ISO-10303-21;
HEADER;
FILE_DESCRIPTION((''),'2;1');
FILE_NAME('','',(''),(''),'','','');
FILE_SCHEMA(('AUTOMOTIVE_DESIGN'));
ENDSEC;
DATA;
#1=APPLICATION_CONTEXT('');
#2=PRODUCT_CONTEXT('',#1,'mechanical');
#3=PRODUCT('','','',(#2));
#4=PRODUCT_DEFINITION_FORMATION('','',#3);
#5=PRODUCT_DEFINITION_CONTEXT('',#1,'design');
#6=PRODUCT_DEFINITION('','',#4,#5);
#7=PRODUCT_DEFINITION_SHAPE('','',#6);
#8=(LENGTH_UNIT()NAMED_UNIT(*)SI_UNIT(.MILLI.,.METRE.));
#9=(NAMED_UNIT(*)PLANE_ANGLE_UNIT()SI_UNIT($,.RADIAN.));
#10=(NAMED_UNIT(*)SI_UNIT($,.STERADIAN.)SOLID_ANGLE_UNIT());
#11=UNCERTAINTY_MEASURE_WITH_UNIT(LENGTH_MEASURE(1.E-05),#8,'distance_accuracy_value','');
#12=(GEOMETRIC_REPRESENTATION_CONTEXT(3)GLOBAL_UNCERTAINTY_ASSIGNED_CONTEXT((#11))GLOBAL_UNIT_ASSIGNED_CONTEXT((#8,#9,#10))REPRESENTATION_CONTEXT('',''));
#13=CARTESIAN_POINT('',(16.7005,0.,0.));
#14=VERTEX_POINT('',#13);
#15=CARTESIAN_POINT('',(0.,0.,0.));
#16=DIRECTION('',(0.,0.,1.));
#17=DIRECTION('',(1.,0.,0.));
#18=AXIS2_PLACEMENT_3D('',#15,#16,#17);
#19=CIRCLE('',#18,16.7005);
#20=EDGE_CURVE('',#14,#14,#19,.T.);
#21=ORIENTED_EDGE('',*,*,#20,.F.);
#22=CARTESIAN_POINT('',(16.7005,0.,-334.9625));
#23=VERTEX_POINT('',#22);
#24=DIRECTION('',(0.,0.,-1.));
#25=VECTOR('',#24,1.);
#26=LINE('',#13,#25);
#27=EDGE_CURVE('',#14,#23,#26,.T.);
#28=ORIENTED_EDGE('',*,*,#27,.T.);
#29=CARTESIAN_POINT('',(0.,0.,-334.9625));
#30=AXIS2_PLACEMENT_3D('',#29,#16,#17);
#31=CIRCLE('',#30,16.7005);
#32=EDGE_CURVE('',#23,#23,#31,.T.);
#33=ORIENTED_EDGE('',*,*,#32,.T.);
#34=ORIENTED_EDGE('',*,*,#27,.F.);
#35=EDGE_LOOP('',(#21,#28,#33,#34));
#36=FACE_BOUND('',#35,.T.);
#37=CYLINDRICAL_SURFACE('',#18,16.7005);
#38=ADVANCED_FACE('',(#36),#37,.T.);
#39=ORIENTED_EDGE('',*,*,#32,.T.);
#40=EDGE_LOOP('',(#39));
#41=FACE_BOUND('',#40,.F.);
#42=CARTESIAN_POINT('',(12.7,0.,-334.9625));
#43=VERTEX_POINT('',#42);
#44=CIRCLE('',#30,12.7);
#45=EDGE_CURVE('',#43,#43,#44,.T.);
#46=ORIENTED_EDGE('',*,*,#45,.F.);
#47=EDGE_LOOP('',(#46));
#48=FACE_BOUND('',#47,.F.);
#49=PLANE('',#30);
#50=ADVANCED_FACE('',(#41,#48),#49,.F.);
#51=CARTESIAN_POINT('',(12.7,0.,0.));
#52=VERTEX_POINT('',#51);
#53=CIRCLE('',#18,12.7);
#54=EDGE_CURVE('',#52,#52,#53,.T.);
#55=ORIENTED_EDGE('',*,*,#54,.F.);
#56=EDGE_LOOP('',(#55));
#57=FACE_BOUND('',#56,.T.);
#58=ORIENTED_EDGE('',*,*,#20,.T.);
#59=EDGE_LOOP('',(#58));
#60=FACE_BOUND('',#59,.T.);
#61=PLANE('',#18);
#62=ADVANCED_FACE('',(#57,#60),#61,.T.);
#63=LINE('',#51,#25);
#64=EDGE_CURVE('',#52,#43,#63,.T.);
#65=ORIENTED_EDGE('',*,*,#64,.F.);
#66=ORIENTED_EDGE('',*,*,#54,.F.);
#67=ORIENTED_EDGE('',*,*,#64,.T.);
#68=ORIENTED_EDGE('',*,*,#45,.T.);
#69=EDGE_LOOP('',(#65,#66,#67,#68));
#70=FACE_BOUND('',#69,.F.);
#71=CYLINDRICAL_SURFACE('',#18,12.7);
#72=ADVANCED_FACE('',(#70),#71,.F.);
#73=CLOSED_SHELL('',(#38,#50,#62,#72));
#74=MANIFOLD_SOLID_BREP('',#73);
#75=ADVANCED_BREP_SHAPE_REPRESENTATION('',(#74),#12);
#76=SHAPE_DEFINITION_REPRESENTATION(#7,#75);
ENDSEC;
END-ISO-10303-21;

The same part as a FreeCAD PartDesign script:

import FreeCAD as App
import Part
import Sketcher
from FreeCAD import Vector
Q = App.Units.Quantity

doc = App.newDocument("Part")
body = doc.addObject("PartDesign::Body", "Body")

# Sketch on XY plane
sketch1 = body.newObject("Sketcher::SketchObject", "Sketch")
sketch1.AttachmentSupport = (doc.getObject("XY_Plane"), [""])
sketch1.MapMode = "FlatFace"
sketch1.addGeometry([
    Part.Circle(Vector(0, 0, 0), Vector(0, 0, 1), 16.7005),
    Part.Circle(Vector(0, 0, 0), Vector(0, 0, 1), 12.7),
], False)
sketch1.addConstraint([
    Sketcher.Constraint("Coincident", 0, 3, -1, 1),
    Sketcher.Constraint("Coincident", 1, 3, -1, 1),
    Sketcher.Constraint("Diameter", 1, Q("1 in")),
    Sketcher.Constraint("Diameter", 0, Q("1.315 in")),
])
pad1 = body.newObject("PartDesign::Pad", "Pad")
pad1.Profile = sketch1
pad1.Length = Q("13.1875 in")
pad1.Reversed = True

doc.recompute()
